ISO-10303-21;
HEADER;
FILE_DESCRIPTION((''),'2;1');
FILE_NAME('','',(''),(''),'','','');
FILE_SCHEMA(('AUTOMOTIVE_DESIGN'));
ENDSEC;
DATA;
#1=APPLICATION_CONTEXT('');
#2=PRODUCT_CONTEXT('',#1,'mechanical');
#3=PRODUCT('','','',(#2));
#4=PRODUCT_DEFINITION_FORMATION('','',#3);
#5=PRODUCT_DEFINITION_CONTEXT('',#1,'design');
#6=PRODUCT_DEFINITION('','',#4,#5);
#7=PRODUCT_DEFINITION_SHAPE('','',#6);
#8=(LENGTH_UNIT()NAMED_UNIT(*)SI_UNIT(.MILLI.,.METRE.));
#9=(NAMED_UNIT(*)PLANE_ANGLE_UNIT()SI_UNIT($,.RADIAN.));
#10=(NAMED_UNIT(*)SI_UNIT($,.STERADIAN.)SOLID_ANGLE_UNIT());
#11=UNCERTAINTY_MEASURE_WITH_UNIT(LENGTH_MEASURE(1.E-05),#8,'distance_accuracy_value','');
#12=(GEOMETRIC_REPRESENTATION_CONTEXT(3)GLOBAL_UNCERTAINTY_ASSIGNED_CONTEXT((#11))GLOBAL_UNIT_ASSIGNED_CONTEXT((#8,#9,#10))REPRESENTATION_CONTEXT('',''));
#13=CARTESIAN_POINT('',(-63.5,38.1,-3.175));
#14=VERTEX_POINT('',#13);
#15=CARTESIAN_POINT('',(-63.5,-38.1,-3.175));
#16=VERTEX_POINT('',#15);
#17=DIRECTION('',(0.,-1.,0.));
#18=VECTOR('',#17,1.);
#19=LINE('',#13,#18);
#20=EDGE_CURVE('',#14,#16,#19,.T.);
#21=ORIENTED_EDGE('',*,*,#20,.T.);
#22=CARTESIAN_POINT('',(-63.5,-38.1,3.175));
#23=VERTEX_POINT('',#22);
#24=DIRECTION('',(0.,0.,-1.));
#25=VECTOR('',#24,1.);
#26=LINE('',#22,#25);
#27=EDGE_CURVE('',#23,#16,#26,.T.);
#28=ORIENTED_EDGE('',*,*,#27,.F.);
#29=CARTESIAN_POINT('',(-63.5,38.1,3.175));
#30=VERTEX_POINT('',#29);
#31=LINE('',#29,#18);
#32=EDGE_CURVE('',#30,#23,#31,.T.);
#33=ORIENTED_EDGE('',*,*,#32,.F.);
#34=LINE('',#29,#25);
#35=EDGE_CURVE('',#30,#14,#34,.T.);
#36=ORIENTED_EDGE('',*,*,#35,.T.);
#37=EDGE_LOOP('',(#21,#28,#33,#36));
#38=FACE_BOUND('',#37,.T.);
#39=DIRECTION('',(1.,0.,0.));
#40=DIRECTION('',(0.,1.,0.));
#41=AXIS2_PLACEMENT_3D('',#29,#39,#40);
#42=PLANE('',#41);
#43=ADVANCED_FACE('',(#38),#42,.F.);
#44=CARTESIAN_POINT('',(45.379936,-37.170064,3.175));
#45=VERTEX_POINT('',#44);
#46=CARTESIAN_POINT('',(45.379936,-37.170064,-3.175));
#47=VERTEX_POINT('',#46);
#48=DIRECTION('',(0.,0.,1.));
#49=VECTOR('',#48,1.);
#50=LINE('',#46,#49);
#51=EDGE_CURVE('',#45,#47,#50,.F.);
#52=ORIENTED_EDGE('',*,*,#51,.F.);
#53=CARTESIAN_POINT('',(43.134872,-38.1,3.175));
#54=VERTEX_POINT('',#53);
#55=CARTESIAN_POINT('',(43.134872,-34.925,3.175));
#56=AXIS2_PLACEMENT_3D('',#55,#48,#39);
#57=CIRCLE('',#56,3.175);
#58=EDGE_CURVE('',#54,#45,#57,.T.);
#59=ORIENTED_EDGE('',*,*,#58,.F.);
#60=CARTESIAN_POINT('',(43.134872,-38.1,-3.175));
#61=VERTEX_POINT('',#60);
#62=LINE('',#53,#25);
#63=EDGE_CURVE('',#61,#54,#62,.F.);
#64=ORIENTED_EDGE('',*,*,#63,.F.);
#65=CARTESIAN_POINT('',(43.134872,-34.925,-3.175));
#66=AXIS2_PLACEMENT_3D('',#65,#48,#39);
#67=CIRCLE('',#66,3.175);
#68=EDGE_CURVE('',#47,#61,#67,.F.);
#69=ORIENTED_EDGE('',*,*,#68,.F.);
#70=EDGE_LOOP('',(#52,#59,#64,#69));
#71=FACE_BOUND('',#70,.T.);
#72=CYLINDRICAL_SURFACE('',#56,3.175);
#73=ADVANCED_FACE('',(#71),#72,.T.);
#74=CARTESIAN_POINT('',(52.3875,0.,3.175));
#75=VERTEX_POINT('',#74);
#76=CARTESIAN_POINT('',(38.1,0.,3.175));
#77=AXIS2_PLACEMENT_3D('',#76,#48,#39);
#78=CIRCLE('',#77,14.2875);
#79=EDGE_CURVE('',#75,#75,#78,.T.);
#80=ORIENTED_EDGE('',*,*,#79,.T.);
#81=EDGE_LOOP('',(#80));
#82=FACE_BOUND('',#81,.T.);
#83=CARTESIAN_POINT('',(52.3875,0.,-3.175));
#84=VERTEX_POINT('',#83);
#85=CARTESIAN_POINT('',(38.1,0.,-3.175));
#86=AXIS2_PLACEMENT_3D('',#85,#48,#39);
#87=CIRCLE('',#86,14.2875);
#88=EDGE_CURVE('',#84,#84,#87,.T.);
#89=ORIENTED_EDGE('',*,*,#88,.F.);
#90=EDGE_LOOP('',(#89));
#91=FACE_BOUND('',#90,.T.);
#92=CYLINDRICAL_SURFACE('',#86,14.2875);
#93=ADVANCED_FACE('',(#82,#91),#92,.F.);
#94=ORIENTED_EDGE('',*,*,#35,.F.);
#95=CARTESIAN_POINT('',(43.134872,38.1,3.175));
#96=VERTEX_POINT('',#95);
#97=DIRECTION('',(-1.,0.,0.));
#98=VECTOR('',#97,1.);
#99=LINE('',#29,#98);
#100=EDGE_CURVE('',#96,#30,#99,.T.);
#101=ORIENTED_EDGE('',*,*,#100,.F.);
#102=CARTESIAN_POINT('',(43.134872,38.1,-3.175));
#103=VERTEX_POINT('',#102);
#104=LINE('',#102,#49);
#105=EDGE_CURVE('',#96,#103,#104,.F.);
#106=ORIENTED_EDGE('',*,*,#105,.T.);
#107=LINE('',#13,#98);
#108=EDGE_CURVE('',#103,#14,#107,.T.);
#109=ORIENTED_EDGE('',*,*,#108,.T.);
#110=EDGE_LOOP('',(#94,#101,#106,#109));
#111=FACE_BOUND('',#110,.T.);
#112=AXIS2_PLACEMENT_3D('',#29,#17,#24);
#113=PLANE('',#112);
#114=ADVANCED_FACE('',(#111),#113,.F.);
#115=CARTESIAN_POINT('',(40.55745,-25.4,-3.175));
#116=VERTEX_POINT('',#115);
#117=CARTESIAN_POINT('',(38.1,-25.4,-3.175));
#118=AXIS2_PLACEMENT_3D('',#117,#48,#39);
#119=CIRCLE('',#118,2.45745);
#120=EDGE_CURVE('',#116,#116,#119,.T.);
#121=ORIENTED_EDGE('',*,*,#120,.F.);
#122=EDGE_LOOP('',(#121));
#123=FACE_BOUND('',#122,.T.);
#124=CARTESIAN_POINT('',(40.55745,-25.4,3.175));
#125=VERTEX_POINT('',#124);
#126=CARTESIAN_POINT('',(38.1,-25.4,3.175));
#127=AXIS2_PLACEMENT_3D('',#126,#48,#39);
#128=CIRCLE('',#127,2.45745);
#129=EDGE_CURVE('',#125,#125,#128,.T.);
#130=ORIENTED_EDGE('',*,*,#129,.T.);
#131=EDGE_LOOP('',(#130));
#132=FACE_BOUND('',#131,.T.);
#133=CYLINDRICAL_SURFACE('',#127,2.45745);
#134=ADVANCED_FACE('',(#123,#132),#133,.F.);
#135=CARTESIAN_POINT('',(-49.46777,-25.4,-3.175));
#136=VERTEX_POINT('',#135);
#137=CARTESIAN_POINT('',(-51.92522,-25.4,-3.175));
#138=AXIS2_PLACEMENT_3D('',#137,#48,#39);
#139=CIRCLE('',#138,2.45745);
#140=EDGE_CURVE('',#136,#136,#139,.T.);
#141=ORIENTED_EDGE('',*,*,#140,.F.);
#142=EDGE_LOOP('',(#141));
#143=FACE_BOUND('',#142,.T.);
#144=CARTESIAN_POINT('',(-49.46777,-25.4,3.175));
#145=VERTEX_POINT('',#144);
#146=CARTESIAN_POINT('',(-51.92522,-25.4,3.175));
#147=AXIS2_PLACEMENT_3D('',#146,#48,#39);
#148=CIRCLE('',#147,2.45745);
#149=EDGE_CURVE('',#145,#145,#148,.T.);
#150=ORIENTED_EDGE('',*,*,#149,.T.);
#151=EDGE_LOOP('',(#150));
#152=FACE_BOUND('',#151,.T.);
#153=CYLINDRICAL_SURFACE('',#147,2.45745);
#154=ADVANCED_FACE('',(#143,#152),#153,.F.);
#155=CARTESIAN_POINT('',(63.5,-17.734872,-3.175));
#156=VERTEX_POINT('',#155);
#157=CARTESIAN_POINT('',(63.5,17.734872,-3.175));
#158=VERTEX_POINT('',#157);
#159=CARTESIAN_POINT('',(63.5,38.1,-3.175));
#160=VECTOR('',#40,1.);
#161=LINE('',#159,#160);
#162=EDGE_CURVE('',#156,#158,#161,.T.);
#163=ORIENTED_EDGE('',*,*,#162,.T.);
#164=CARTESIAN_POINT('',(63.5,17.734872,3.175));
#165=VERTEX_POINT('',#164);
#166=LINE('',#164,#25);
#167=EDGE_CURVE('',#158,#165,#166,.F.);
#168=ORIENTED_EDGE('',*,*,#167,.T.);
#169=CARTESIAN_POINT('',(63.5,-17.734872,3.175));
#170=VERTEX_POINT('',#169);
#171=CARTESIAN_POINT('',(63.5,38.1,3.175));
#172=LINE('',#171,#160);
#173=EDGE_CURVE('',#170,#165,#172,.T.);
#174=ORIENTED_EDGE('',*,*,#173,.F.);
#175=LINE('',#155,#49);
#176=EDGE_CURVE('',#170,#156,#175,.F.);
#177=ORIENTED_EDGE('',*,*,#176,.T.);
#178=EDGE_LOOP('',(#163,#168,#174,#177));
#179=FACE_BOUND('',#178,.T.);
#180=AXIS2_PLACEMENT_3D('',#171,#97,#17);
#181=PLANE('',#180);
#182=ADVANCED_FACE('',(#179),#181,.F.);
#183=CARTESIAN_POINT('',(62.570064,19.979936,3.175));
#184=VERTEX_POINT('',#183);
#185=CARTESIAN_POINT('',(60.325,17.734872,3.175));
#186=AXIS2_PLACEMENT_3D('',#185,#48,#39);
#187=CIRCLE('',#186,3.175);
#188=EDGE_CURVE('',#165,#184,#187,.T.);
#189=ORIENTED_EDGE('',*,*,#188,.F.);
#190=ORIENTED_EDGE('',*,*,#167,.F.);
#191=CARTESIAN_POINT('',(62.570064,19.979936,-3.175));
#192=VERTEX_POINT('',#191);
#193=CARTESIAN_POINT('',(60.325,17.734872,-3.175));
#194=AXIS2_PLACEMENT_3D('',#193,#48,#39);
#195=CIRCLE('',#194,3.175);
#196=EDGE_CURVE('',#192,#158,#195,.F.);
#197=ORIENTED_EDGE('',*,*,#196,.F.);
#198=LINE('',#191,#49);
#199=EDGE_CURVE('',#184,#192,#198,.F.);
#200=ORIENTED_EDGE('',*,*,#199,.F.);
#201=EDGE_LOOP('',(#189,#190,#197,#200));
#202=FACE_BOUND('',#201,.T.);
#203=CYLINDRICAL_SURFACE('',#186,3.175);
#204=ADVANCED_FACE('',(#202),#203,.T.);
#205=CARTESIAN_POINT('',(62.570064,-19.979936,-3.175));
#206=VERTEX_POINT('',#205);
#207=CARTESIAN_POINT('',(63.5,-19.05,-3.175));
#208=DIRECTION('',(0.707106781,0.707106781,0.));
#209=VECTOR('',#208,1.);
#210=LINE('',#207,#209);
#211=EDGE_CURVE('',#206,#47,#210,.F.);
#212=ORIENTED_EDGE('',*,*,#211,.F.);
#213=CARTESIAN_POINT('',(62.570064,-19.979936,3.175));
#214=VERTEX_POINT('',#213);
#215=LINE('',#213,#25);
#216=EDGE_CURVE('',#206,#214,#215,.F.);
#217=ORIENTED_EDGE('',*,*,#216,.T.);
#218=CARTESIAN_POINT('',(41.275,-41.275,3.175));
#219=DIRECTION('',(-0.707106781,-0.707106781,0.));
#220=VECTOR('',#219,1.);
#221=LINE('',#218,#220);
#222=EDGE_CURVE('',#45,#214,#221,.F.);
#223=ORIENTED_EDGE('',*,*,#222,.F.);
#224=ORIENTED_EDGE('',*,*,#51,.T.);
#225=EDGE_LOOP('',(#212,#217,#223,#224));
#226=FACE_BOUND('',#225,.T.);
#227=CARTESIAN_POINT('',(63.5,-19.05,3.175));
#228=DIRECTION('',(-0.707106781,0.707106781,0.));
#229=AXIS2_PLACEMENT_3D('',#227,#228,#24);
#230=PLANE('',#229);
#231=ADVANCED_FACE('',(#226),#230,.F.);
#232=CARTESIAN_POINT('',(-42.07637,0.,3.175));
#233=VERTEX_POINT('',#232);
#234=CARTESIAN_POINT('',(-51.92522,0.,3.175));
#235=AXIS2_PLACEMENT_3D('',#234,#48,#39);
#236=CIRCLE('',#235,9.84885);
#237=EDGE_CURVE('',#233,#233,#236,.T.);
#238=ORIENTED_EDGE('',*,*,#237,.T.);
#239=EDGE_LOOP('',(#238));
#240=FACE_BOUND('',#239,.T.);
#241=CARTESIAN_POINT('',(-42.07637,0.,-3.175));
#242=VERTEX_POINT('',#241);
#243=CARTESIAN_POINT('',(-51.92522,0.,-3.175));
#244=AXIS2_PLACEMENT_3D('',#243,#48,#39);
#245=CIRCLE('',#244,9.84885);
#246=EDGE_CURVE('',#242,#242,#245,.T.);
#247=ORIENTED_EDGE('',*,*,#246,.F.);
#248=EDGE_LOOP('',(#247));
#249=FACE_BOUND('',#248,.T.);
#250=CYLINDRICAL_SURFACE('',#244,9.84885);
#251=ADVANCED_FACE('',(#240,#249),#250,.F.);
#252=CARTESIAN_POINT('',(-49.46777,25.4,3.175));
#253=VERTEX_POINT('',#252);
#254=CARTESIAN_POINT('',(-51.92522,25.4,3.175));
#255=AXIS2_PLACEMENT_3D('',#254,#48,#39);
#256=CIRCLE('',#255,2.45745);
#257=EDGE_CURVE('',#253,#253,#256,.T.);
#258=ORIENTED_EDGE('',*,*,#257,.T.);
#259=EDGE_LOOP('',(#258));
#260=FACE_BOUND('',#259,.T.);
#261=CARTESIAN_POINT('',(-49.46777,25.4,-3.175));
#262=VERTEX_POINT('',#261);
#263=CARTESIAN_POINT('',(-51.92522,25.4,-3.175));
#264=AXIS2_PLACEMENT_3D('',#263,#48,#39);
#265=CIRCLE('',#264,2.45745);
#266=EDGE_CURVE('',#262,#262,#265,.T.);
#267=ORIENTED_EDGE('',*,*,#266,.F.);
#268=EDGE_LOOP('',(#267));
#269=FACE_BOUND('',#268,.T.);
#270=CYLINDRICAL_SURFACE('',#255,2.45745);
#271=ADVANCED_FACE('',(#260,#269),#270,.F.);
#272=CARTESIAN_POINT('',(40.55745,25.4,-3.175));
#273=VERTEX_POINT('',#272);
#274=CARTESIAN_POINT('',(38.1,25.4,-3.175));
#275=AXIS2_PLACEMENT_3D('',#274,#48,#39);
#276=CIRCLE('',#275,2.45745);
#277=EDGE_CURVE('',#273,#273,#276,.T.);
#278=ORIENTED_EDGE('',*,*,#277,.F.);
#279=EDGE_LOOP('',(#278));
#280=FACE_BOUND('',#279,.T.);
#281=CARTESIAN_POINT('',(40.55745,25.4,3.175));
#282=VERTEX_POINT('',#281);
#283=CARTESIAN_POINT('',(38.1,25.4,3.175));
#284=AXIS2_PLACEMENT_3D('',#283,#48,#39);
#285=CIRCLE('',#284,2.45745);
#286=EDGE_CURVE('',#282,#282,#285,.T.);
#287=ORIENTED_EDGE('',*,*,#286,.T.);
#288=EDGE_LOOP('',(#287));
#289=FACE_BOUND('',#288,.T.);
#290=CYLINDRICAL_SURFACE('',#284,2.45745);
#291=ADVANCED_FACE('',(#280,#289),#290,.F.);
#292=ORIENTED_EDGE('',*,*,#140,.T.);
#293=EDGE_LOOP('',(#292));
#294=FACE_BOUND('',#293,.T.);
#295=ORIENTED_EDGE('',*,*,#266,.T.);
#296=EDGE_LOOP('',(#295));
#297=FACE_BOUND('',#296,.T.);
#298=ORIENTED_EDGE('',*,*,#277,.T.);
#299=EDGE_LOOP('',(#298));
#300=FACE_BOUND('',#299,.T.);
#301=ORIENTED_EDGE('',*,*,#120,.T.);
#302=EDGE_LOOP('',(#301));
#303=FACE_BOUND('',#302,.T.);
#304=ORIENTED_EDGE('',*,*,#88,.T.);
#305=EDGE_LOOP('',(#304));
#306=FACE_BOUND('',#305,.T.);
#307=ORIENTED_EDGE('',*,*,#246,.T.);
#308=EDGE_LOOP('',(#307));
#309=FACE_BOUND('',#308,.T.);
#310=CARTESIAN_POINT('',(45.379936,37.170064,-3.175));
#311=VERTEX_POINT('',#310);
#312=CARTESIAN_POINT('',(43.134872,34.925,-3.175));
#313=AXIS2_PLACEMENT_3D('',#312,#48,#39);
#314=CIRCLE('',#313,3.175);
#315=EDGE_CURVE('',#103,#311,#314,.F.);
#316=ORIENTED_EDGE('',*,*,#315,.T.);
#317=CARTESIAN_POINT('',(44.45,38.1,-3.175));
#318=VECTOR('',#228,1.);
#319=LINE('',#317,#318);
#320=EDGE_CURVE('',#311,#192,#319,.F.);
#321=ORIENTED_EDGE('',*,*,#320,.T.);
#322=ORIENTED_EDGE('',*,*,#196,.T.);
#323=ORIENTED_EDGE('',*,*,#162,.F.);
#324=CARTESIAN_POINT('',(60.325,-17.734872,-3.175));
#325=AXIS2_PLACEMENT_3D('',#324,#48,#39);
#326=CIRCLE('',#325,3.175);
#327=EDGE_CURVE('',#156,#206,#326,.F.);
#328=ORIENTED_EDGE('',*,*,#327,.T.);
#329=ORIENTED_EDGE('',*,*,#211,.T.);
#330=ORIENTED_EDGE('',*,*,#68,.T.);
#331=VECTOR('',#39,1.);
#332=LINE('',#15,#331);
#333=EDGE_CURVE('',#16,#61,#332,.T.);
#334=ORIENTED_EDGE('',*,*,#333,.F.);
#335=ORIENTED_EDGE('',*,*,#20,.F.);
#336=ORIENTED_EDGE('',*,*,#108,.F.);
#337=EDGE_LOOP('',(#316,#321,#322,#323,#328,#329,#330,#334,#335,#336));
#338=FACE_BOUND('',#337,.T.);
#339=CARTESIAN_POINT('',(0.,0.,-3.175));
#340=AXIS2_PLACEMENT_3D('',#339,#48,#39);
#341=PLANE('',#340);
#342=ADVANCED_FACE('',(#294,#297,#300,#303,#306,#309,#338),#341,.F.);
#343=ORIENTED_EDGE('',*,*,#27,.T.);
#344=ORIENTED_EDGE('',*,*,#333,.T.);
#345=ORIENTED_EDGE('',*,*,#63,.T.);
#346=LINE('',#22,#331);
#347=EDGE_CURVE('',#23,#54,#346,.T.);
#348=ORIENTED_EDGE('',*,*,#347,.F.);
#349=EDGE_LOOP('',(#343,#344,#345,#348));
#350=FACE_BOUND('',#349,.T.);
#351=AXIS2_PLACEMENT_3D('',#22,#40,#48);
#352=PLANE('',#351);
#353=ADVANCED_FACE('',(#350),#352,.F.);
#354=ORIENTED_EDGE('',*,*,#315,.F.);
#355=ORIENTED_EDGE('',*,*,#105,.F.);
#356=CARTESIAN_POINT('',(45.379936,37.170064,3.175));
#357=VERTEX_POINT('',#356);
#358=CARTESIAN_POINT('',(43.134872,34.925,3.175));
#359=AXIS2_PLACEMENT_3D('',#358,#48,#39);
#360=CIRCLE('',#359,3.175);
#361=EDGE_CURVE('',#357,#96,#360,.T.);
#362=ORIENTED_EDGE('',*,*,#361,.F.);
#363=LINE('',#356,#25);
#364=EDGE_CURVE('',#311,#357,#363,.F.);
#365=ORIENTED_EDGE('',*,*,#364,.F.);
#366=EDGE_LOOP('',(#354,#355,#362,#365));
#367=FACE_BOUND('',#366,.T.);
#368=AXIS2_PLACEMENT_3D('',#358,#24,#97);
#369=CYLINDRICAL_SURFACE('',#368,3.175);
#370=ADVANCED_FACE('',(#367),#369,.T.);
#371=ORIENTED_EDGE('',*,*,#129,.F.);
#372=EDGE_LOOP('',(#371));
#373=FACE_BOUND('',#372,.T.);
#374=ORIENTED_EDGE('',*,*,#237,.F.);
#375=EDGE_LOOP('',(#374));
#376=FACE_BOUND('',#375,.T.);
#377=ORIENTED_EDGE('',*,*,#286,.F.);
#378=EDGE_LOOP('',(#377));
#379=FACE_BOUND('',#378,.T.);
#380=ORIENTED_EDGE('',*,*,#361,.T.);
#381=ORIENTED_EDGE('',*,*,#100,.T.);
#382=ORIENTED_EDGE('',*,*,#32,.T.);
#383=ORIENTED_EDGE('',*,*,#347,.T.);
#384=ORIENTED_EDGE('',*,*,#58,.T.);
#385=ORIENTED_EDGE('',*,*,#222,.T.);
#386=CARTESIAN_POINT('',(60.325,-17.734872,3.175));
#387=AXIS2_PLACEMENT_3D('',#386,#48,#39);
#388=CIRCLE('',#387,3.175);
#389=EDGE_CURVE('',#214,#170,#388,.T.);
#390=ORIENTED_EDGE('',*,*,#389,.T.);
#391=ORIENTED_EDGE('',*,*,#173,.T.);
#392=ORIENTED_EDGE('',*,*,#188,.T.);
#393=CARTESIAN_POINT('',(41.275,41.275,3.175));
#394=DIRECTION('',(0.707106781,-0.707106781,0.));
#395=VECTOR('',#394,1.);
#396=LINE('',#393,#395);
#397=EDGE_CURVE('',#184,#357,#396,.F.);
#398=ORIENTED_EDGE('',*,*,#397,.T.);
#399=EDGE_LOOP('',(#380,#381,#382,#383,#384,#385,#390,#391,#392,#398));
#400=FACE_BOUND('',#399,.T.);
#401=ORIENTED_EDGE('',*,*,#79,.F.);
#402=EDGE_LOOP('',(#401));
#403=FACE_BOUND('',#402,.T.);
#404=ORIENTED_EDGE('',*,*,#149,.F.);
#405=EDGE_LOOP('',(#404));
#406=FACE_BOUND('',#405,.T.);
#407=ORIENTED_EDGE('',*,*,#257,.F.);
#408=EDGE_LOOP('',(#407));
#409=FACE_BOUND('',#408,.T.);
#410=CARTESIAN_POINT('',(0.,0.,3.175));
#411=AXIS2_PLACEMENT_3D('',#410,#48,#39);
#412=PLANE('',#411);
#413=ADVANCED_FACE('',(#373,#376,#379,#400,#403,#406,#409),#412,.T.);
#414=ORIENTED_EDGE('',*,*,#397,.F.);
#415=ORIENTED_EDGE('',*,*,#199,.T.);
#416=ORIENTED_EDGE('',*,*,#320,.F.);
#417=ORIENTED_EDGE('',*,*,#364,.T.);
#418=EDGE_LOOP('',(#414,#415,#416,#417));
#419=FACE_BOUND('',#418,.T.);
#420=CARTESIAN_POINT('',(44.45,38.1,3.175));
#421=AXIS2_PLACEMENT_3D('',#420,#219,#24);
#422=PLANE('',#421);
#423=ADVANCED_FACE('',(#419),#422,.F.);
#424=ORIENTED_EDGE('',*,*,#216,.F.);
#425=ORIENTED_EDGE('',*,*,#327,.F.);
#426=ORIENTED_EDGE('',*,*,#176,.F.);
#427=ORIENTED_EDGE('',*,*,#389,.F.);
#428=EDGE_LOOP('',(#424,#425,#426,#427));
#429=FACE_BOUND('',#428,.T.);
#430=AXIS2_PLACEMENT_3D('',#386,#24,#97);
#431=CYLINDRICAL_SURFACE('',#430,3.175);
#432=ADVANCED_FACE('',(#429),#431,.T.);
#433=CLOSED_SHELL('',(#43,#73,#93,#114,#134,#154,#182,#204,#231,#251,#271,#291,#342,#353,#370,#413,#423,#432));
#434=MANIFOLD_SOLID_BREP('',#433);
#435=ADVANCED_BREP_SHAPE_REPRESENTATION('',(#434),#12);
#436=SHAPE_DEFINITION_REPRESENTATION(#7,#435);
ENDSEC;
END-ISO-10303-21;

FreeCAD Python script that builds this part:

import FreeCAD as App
import Part
import Sketcher
Q = App.Units.Quantity


def edges_at(feature, points):
    """Names of the edges that pass closest to the given points."""
    edges = feature.Shape.Edges
    near = lambda p: min(range(len(edges)), key=lambda i: edges[i].distToShape(Part.Vertex(*p))[0])
    return sorted({f"Edge{near(p) + 1}" for p in points})


def add_polygon(sketch, points):
    """Adds a closed chain of lines whose ends are joined by coincident constraints."""
    first, n = sketch.GeometryCount, len(points)
    for a, b in zip(points, points[1:] + points[:1]):
        sketch.addGeometry(Part.LineSegment(App.Vector(*a, 0), App.Vector(*b, 0)), False)
    for i in range(n):
        sketch.addConstraint(Sketcher.Constraint("Coincident", first + i, 2, first + (i + 1) % n, 1))

doc = App.newDocument("Part")
body = doc.addObject("PartDesign::Body", "Body")

# Sketch on XY plane
sketch1 = body.newObject("Sketcher::SketchObject", "Sketch")
sketch1.AttachmentSupport = (doc.getObject("XY_Plane"), [""])
sketch1.MapMode = "FlatFace"
add_polygon(sketch1, [(-64, 38), (-64, -38), (64, -38), (64, 38)])  # lines 0-3
sketch1.addConstraint([
    Sketcher.Constraint("Vertical", 0),
    Sketcher.Constraint("Horizontal", 1),
    Sketcher.Constraint("Vertical", 2),
    Sketcher.Constraint("Horizontal", 3),
    Sketcher.Constraint("Symmetric", 0, 2, 2, 2, -1, 1),
    Sketcher.Constraint("DistanceX", 1, 1, 1, 2, Q("5 in")),
    Sketcher.Constraint("DistanceY", 0, 2, 0, 1, Q("3 in")),
])
pad1 = body.newObject("PartDesign::Pad", "Pad")
pad1.Profile = sketch1
pad1.Length = Q("0.25 in")
pad1.Midplane = True

# Sketch on XY plane
sketch2 = body.newObject("Sketcher::SketchObject", "Sketch001")
sketch2.AttachmentSupport = (doc.getObject("XY_Plane"), [""])
sketch2.MapMode = "FlatFace"
sketch2.AttachmentOffset = App.Placement(App.Vector(0, 0, 0.125 * 25.4), App.Rotation())
sketch2.addGeometry([
    Part.Circle(App.Vector(-52, 0, 0), App.Vector(0, 0, 1), 10),
    Part.Circle(App.Vector(38, 0, 0), App.Vector(0, 0, 1), 14),
], False)
sketch2.addConstraint([
    Sketcher.Constraint("PointOnObject", 0, 3, -1),
    Sketcher.Constraint("PointOnObject", 1, 3, -1),
    Sketcher.Constraint("Diameter", 1, Q("1.125 in")),
    Sketcher.Constraint("Diameter", 0, Q("0.7755 in")),
    Sketcher.Constraint("DistanceX", -1, 1, 1, 3, Q("1.5 in")),
    Sketcher.Constraint("DistanceX", 0, 3, -1, 1, Q("2.0443 in")),
])
pocket1 = body.newObject("PartDesign::Pocket", "Pocket")
pocket1.Profile = sketch2
pocket1.Type = "ThroughAll"
doc.recompute()

chamfer = body.newObject("PartDesign::Chamfer", "Chamfer")
chamfer.Base = (pocket1, edges_at(pocket1, [(63.5, -38.1, 0), (63.5, 38.1, 0)]))
chamfer.Size = Q("0.75 in")

# Sketch on XY plane
sketch3 = body.newObject("Sketcher::SketchObject", "Sketch002")
sketch3.AttachmentSupport = (doc.getObject("XY_Plane"), [""])
sketch3.MapMode = "FlatFace"
sketch3.AttachmentOffset = App.Placement(App.Vector(0, 0, 0.125 * 25.4), App.Rotation())
sketch3.addGeometry([
    Part.Circle(App.Vector(-51.9, 25.4, 0), App.Vector(0, 0, 1), 2.5),  # 0
    Part.Circle(App.Vector(-51.9, -25.4, 0), App.Vector(0, 0, 1), 2.5),  # 1
    Part.Circle(App.Vector(38.1, 25.4, 0), App.Vector(0, 0, 1), 2.5),  # 2
    Part.Circle(App.Vector(38.1, -25.4, 0), App.Vector(0, 0, 1), 2.5),  # 3
    Part.Circle(App.Vector(-51.9, 0, 0), App.Vector(0, 0, 1), 2.5),  # 4
    Part.Circle(App.Vector(38.1, 0, 0), App.Vector(0, 0, 1), 2.5),  # 5
], False)
sketch3.addConstraint([
    Sketcher.Constraint("Equal", 0, 1),
    Sketcher.Constraint("Equal", 1, 2),
    Sketcher.Constraint("Equal", 2, 3),
    Sketcher.Constraint("Equal", 3, 4),
    Sketcher.Constraint("Equal", 4, 5),
    Sketcher.Constraint("Symmetric", 0, 3, 1, 3, -1),
    Sketcher.Constraint("Symmetric", 2, 3, 3, 3, -1),
    Sketcher.Constraint("PointOnObject", 4, 3, -1),
    Sketcher.Constraint("PointOnObject", 5, 3, -1),
    Sketcher.Constraint("Horizontal", 0, 3, 2, 3),
    Sketcher.Constraint("Vertical", 1, 3, 4, 3),
    Sketcher.Constraint("Vertical", 3, 3, 5, 3),
    Sketcher.Constraint("DistanceY", -1, 1, 0, 3, Q("1 in")),
    Sketcher.Constraint("Diameter", 0, Q("0.1935 in")),
    Sketcher.Constraint("DistanceX", -1, 1, 2, 3, Q("1.5 in")),
    Sketcher.Constraint("DistanceX", 0, 3, -1, 1, Q("2.0443 in")),
])
doc.recompute()
hole = body.newObject("PartDesign::Hole", "Hole")
hole.Profile = sketch3
hole.ThreadType = "None"
hole.Diameter = Q("0.1935 in")
hole.DepthType = "ThroughAll"
doc.recompute()

fillet = body.newObject("PartDesign::Fillet", "Fillet")
fillet.Base = (hole, edges_at(hole, [
    (44.45, 38.1, 0),
    (63.5, -19.05, 0),
    (63.5, 19.05, 0),
    (44.45, -38.1, 0),
]))
fillet.Radius = Q("0.125 in")

doc.recompute()
